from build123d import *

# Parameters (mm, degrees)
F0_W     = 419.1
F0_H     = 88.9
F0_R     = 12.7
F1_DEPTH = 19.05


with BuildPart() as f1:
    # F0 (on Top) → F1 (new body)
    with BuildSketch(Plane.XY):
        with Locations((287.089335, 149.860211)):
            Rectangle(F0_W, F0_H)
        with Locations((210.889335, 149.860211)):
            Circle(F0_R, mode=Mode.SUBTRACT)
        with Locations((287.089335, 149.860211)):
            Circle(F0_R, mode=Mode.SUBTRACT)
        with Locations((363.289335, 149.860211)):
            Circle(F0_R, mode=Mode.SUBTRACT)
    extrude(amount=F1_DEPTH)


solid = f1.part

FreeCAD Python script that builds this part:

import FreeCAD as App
import Part
import Sketcher
from FreeCAD import Vector
Q = App.Units.Quantity

doc = App.newDocument("Part")
body = doc.addObject("PartDesign::Body", "Body")

sketch1 = body.newObject("Sketcher::SketchObject", "Sketch")
sketch1.AttachmentSupport = (doc.getObject("XY_Plane"), [""])
sketch1.MapMode = "FlatFace"
sketch1.addGeometry([
    Part.LineSegment(Vector(78, 194, 0), Vector(78, 105, 0)),
    Part.LineSegment(Vector(78, 105, 0), Vector(497, 105, 0)),
    Part.LineSegment(Vector(497, 105, 0), Vector(497, 194, 0)),
    Part.LineSegment(Vector(497, 194, 0), Vector(78, 194, 0)),
    Part.Circle(Vector(211, 150, 0), Vector(0, 0, 1), 13),
    Part.Circle(Vector(287, 150, 0), Vector(0, 0, 1), 13),
    Part.Circle(Vector(363, 150, 0), Vector(0, 0, 1), 13),
], False)
sketch1.addConstraint([
    Sketcher.Constraint("Coincident", 0, 2, 1, 1),
    Sketcher.Constraint("Coincident", 1, 2, 2, 1),
    Sketcher.Constraint("Coincident", 2, 2, 3, 1),
    Sketcher.Constraint("Coincident", 3, 2, 0, 1),
    Sketcher.Constraint("Vertical", 0),
    Sketcher.Constraint("Horizontal", 1),
    Sketcher.Constraint("Vertical", 2),
    Sketcher.Constraint("Horizontal", 3),
    Sketcher.Constraint("Equal", 4, 5),
    Sketcher.Constraint("Equal", 5, 6),
    Sketcher.Constraint("Horizontal", 4, 3, 5, 3),
    Sketcher.Constraint("Horizontal", 5, 3, 6, 3),
    Sketcher.Constraint("Diameter", 4, Q("1 in")),
    Sketcher.Constraint("DistanceX", 1, 1, 1, 2, Q("16.5 in")),
    Sketcher.Constraint("DistanceY", 0, 2, 0, 1, Q("3.5 in")),
    Sketcher.Constraint("DistanceX", 4, 3, 5, 3, Q("3 in")),
    Sketcher.Constraint("DistanceX", 5, 3, 6, 3, Q("3 in")),
    Sketcher.Constraint("DistanceX", 0, 2, 4, 3, Q("5.25 in")),
    Sketcher.Constraint("DistanceY", 0, 2, 4, 3, Q("1.75 in")),
    Sketcher.Constraint("DistanceY", -1, 1, 4, 3, 149.860211),
    Sketcher.Constraint("DistanceX", -1, 1, 4, 3, 210.889335),
])
pad1 = body.newObject("PartDesign::Pad", "Pad")
pad1.Profile = sketch1
pad1.Length = Q("0.75 in")

doc.recompute()
